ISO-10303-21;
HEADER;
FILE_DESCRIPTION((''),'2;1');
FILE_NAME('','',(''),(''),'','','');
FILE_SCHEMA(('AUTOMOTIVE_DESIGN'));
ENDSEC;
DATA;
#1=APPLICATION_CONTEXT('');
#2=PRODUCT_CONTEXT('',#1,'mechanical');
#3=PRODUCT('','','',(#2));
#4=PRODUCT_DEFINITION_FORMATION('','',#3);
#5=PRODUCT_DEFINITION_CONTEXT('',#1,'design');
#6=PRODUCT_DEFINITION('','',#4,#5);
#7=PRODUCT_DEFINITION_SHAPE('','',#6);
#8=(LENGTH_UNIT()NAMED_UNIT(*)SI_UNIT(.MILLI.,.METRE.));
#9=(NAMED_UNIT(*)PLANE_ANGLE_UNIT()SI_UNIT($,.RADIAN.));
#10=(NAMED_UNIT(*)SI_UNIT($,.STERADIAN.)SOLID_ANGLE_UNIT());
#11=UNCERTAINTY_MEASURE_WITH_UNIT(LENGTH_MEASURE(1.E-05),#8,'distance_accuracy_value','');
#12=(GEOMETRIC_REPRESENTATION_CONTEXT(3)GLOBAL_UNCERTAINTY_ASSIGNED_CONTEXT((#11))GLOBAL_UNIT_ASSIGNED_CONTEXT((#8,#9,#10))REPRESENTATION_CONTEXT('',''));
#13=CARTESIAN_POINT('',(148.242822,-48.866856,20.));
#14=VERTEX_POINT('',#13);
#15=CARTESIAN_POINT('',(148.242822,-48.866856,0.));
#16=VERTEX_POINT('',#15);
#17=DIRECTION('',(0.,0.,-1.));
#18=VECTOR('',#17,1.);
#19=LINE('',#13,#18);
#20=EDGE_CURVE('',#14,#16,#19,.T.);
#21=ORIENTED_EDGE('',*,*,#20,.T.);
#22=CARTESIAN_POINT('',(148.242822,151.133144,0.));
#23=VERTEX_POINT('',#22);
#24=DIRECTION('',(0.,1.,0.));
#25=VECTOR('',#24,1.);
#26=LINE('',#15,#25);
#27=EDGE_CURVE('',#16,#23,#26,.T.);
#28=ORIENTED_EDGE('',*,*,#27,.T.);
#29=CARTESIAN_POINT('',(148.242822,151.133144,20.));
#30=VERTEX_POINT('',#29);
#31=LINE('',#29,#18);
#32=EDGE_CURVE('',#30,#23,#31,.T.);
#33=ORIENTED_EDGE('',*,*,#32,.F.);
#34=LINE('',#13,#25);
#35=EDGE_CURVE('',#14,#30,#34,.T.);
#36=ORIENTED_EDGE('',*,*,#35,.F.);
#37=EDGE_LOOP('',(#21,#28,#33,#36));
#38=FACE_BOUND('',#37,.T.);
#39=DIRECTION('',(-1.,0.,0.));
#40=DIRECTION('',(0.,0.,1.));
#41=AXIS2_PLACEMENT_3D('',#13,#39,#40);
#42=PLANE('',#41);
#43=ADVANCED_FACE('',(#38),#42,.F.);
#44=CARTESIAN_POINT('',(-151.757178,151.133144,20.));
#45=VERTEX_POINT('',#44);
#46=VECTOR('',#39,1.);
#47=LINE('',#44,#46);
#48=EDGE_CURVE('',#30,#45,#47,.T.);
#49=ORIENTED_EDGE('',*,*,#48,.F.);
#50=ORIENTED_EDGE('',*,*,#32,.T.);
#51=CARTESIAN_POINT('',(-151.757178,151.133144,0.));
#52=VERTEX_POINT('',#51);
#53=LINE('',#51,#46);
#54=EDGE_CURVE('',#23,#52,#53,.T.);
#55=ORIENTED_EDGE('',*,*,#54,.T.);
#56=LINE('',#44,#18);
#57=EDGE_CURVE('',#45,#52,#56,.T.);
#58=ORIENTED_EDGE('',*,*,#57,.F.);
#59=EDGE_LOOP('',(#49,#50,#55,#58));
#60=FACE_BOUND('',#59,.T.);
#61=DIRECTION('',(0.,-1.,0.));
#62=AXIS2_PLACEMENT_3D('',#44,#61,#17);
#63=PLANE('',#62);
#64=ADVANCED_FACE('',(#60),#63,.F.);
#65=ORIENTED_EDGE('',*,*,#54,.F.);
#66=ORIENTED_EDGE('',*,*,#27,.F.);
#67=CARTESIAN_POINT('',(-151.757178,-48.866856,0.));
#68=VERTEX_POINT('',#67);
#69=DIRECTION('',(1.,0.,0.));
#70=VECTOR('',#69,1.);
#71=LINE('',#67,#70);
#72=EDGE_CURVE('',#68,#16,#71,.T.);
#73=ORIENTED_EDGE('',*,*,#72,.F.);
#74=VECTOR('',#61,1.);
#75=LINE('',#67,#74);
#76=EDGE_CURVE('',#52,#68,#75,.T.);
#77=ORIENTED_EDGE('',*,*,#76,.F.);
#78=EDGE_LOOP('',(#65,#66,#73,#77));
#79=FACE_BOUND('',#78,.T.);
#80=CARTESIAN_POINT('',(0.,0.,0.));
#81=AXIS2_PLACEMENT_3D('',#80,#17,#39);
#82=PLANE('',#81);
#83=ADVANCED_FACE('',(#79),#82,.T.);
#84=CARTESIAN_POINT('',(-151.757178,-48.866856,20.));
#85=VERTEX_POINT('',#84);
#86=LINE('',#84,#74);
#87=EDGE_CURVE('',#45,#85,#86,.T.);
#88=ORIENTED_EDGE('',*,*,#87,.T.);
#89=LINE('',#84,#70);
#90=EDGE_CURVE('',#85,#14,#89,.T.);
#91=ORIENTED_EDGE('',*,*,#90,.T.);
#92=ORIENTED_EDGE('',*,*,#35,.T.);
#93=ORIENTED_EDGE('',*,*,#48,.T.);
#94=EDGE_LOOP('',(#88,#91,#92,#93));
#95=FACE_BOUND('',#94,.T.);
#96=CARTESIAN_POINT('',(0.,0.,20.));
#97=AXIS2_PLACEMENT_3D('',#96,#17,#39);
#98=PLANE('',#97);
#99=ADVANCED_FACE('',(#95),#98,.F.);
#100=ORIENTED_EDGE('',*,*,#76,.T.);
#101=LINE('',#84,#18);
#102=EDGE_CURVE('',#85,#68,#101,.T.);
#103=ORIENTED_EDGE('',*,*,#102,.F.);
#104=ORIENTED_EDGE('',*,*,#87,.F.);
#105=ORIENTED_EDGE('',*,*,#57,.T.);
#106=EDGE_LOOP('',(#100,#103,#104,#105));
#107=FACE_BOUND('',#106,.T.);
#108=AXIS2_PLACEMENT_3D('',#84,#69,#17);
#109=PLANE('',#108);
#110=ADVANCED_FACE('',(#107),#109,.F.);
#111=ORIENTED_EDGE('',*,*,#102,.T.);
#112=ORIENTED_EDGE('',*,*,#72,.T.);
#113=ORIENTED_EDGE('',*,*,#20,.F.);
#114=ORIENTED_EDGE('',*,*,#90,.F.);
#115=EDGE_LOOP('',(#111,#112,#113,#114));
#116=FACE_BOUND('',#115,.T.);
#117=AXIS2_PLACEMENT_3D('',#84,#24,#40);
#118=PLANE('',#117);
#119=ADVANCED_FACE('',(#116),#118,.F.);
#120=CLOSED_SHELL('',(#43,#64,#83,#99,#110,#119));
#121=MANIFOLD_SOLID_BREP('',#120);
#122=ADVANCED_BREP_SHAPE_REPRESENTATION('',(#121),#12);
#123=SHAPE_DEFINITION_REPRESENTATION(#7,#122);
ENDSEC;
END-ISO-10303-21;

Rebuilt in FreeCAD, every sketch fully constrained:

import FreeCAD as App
import Part
import Sketcher

V = App.Vector
Q = App.Units.Quantity

doc = App.newDocument("Part")
body = doc.addObject("PartDesign::Body", "Body")

# Sketch on XY plane
sketch1 = body.newObject("Sketcher::SketchObject", "Sketch")
sketch1.AttachmentSupport = (doc.getObject("XY_Plane"), [""])
sketch1.MapMode = "FlatFace"
sketch1.addGeometry([
    Part.LineSegment(V(-152, 151, 0), V(-152, -49, 0)),
    Part.LineSegment(V(-152, -49, 0), V(148, -49, 0)),
    Part.LineSegment(V(148, -49, 0), V(148, 151, 0)),
    Part.LineSegment(V(148, 151, 0), V(-152, 151, 0)),
], False)
sketch1.addConstraint([
    Sketcher.Constraint("Coincident", 0, 2, 1, 1),
    Sketcher.Constraint("Coincident", 1, 2, 2, 1),
    Sketcher.Constraint("Coincident", 2, 2, 3, 1),
    Sketcher.Constraint("Coincident", 3, 2, 0, 1),
    Sketcher.Constraint("Vertical", 0),
    Sketcher.Constraint("Horizontal", 1),
    Sketcher.Constraint("Vertical", 2),
    Sketcher.Constraint("Horizontal", 3),
    Sketcher.Constraint("DistanceX", 1, 1, 1, 2, Q("300 mm")),
    Sketcher.Constraint("DistanceY", 0, 2, 0, 1, Q("200 mm")),
    Sketcher.Constraint("DistanceX", 0, 2, -1, 1, Q("151.757178 mm")),
    Sketcher.Constraint("DistanceY", 0, 2, -1, 1, Q("48.866856 mm")),
])
pad1 = body.newObject("PartDesign::Pad", "Pad")
pad1.Profile = sketch1
pad1.Length = 20

doc.recompute()
